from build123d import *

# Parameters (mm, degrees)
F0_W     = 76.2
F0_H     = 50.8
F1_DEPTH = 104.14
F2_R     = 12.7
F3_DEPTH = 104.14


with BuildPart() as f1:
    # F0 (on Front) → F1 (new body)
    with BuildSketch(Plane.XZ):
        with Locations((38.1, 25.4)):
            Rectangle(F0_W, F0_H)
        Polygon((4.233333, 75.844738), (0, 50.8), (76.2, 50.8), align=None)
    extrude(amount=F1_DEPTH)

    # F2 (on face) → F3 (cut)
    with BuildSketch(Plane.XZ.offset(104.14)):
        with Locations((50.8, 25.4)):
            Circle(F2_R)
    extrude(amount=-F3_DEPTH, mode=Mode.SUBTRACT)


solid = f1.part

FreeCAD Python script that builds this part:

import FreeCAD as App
import Part
import Sketcher
Q = App.Units.Quantity


def add_polygon(sketch, points):
    """Adds a closed chain of lines whose ends are joined by coincident constraints."""
    first, n = sketch.GeometryCount, len(points)
    for a, b in zip(points, points[1:] + points[:1]):
        sketch.addGeometry(Part.LineSegment(App.Vector(*a, 0), App.Vector(*b, 0)), False)
    for i in range(n):
        sketch.addConstraint(Sketcher.Constraint("Coincident", first + i, 2, first + (i + 1) % n, 1))

doc = App.newDocument("Part")
body = doc.addObject("PartDesign::Body", "Body")

sketch1 = body.newObject("Sketcher::SketchObject", "Sketch")
sketch1.AttachmentSupport = (doc.getObject("XZ_Plane"), [""])
sketch1.MapMode = "FlatFace"
add_polygon(sketch1, [(0, 50.8), (0, 0), (76.2, 0), (76.2, 50.8), (4.233333, 75.844738)])
sketch1.addConstraint(Sketcher.Constraint("Vertical", 0))
sketch1.addConstraint(Sketcher.Constraint("Horizontal", 1))
sketch1.addConstraint(Sketcher.Constraint("Vertical", 2))
sketch1.addConstraint(Sketcher.Constraint("Coincident", 0, 2, -1, 1))
sketch1.addConstraint(Sketcher.Constraint("Horizontal", 2, 2, 4, 2))
sketch1.addConstraint(Sketcher.Constraint("DistanceX", 1, 1, 1, 2, Q("3 in")))
sketch1.addConstraint(Sketcher.Constraint("DistanceY", 0, 2, 0, 1, Q("2 in")))
sketch1.addConstraint(Sketcher.Constraint("Distance", 3, Q("3 in")))
sketch1.addConstraint(Sketcher.Constraint("Distance", 4, Q("1 in")))
pad1 = body.newObject("PartDesign::Pad", "Pad")
pad1.Profile = sketch1
pad1.Length = Q("4.1 in")

sketch2 = body.newObject("Sketcher::SketchObject", "Sketch001")
sketch2.AttachmentSupport = (doc.getObject("XZ_Plane"), [""])
sketch2.MapMode = "FlatFace"
sketch2.AttachmentOffset = App.Placement(App.Vector(0, 0, 4.1 * 25.4), App.Rotation())
sketch2.addGeometry(Part.Circle(App.Vector(50.8, 25.4, 0), App.Vector(0, 0, 1), 12.7), False)
sketch2.addConstraint(Sketcher.Constraint("Diameter", 0, Q("1 in")))
sketch2.addConstraint(Sketcher.Constraint("DistanceX", -1, 1, 0, 3, Q("2 in")))
sketch2.addConstraint(Sketcher.Constraint("DistanceY", -1, 1, 0, 3, Q("1 in")))
pocket1 = body.newObject("PartDesign::Pocket", "Pocket")
pocket1.Profile = sketch2
pocket1.Length = Q("4.1 in")

doc.recompute()
